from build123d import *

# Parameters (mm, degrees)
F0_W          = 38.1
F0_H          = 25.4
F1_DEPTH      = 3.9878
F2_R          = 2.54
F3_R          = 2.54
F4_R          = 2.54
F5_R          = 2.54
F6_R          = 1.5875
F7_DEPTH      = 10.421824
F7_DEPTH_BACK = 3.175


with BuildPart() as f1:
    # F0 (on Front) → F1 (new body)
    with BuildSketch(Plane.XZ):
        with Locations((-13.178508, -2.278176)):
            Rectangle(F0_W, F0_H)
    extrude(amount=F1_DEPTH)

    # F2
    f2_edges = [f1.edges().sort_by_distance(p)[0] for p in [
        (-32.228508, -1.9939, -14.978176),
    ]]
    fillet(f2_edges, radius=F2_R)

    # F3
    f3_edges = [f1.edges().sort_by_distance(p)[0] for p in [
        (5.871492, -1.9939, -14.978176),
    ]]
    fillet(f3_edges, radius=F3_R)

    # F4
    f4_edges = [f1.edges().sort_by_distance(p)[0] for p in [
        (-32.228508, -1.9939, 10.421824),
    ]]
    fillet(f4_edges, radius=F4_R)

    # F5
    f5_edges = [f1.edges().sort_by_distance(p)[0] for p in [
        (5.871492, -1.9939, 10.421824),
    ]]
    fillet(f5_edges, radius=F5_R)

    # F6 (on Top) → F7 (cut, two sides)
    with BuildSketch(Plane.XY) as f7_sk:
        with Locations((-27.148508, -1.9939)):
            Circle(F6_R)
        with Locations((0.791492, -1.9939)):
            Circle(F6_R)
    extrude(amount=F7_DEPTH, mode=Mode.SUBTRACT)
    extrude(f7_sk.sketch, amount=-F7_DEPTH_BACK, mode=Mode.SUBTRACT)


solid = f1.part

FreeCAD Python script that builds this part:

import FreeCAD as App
import Part
import Sketcher

V = App.Vector
Q = App.Units.Quantity


def edges_at(feature, points):
    """Names of the edges that pass closest to the given points."""
    edges = feature.Shape.Edges
    near = lambda p: min(range(len(edges)), key=lambda i: edges[i].distToShape(Part.Vertex(*p))[0])
    return sorted({f"Edge{near(p) + 1}" for p in points})

doc = App.newDocument("Part")
body = doc.addObject("PartDesign::Body", "Body")

# Sketch on XZ plane
sketch1 = body.newObject("Sketcher::SketchObject", "Sketch")
sketch1.AttachmentSupport = (doc.getObject("XZ_Plane"), [""])
sketch1.MapMode = "FlatFace"
sketch1.addGeometry([
    Part.LineSegment(V(-32.228508, 10.421824, 0), V(-32.228508, -14.978176, 0)),
    Part.LineSegment(V(-32.228508, -14.978176, 0), V(5.871492, -14.978176, 0)),
    Part.LineSegment(V(5.871492, -14.978176, 0), V(5.871492, 10.421824, 0)),
    Part.LineSegment(V(5.871492, 10.421824, 0), V(-32.228508, 10.421824, 0)),
], False)
sketch1.addConstraint([
    Sketcher.Constraint("Coincident", 0, 2, 1, 1),
    Sketcher.Constraint("Coincident", 1, 2, 2, 1),
    Sketcher.Constraint("Coincident", 2, 2, 3, 1),
    Sketcher.Constraint("Coincident", 3, 2, 0, 1),
    Sketcher.Constraint("Vertical", 0),
    Sketcher.Constraint("Horizontal", 1),
    Sketcher.Constraint("Vertical", 2),
    Sketcher.Constraint("Horizontal", 3),
    Sketcher.Constraint("DistanceY", 0, 2, 0, 1, Q("1 in")),
    Sketcher.Constraint("DistanceX", 1, 1, 1, 2, Q("1.5 in")),
    Sketcher.Constraint("DistanceX", 0, 2, -1, 1, Q("32.228508 mm")),
    Sketcher.Constraint("DistanceY", 0, 2, -1, 1, Q("14.978176 mm")),
])
pad1 = body.newObject("PartDesign::Pad", "Pad")
pad1.Profile = sketch1
pad1.Length = Q("0.157 in")
doc.recompute()

fillet = body.newObject("PartDesign::Fillet", "Fillet")
fillet.Base = (pad1, edges_at(pad1, [(-32.229, -1.994, -14.978)]))
fillet.Radius = Q("0.1 in")
doc.recompute()

fillet2 = body.newObject("PartDesign::Fillet", "Fillet001")
fillet2.Base = (fillet, edges_at(fillet, [(5.871, -1.994, -14.978)]))
fillet2.Radius = Q("0.1 in")
doc.recompute()

fillet3 = body.newObject("PartDesign::Fillet", "Fillet002")
fillet3.Base = (fillet2, edges_at(fillet2, [(-32.229, -1.994, 10.422)]))
fillet3.Radius = Q("0.1 in")
doc.recompute()

fillet4 = body.newObject("PartDesign::Fillet", "Fillet003")
fillet4.Base = (fillet3, edges_at(fillet3, [(5.871, -1.994, 10.422)]))
fillet4.Radius = Q("0.1 in")

# Sketch on XY plane
sketch2 = body.newObject("Sketcher::SketchObject", "Sketch001")
sketch2.AttachmentSupport = (doc.getObject("XY_Plane"), [""])
sketch2.MapMode = "FlatFace"
sketch2.addGeometry([
    Part.Circle(V(-27.148508, -1.9939, 0), V(0, 0, 1), 1.5875),
    Part.Circle(V(0.791492, -1.9939, 0), V(0, 0, 1), 1.5875),
], False)
sketch2.addConstraint([
    Sketcher.Constraint("Equal", 0, 1),
    Sketcher.Constraint("Horizontal", 0, 3, 1, 3),
    Sketcher.Constraint("Diameter", 0, Q("0.125 in")),
    Sketcher.Constraint("DistanceX", 0, 3, 1, 3, Q("1.1 in")),
    Sketcher.Constraint("DistanceY", 0, 3, -1, 1, Q("0.0785 in")),
    Sketcher.Constraint("DistanceX", -1, 1, 1, 3, Q("0.791492 mm")),
])
pocket1 = body.newObject("PartDesign::Pocket", "Pocket")
pocket1.Profile = sketch2
pocket1.Type = "TwoLengths"
pocket1.Length = 10.421824
pocket1.Length2 = Q("0.125 in")
pocket1.Reversed = True

doc.recompute()
